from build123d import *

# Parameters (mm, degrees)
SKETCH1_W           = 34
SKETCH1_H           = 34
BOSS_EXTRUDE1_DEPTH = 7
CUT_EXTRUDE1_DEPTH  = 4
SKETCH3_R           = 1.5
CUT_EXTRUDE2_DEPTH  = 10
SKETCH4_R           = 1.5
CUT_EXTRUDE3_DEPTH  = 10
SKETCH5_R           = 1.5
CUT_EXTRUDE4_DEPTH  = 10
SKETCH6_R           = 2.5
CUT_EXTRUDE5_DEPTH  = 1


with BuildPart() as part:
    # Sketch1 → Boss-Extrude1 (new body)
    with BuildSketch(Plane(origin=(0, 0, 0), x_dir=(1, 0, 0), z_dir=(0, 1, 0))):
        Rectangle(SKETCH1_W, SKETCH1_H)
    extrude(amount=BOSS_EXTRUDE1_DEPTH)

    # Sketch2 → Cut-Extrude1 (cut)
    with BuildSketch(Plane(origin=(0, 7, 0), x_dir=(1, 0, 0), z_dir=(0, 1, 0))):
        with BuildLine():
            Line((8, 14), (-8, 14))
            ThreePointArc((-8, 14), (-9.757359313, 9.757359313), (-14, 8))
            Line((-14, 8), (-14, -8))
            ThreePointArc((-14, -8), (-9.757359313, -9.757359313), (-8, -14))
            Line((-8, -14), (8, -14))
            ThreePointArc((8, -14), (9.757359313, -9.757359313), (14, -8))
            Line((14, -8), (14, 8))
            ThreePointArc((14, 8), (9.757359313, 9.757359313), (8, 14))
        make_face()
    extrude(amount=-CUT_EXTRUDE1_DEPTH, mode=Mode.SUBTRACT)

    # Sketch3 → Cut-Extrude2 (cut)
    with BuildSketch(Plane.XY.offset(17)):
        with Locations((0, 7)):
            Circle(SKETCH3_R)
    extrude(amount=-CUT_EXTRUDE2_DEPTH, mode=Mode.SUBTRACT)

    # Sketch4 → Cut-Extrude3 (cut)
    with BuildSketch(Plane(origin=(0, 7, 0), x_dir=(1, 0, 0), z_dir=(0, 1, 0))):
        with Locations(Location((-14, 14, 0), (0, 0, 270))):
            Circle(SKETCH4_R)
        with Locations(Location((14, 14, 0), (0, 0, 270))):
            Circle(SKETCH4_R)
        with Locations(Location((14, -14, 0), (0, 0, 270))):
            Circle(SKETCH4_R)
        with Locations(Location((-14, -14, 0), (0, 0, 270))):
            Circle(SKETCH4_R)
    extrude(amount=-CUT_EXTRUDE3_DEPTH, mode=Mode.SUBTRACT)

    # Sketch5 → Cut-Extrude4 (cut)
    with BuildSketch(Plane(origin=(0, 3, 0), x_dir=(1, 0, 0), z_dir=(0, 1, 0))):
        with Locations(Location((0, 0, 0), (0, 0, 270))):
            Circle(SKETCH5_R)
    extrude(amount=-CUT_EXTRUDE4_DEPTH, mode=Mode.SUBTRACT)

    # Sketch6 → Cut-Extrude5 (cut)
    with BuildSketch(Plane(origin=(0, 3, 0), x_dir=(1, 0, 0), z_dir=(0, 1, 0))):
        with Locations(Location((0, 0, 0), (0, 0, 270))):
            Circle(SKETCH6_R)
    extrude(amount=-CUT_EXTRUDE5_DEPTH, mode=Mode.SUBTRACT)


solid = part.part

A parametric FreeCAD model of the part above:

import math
import FreeCAD as App
import Part
import Sketcher

V = App.Vector


def add_polygon(sketch, points):
    """Adds a closed chain of lines whose ends are joined by coincident constraints."""
    first, n = sketch.GeometryCount, len(points)
    for a, b in zip(points, points[1:] + points[:1]):
        sketch.addGeometry(Part.LineSegment(App.Vector(*a, 0), App.Vector(*b, 0)), False)
    for i in range(n):
        sketch.addConstraint(Sketcher.Constraint("Coincident", first + i, 2, first + (i + 1) % n, 1))

doc = App.newDocument("Part")
body = doc.addObject("PartDesign::Body", "Body")

# Sketch on XZ plane
sketch1 = body.newObject("Sketcher::SketchObject", "Sketch")
sketch1.AttachmentSupport = (doc.getObject("XZ_Plane"), [""])
sketch1.MapMode = "FlatFace"
add_polygon(sketch1, [(-17, -17), (-17, 17), (17, 17), (17, -17)])  # lines 0-3
sketch1.addConstraint([
    Sketcher.Constraint("Vertical", 0),
    Sketcher.Constraint("Horizontal", 1),
    Sketcher.Constraint("Vertical", 2),
    Sketcher.Constraint("Horizontal", 3),
    Sketcher.Constraint("Symmetric", 0, 2, 2, 2, -1, 1),
    Sketcher.Constraint("Equal", 3, 0),
    Sketcher.Constraint("DistanceX", 1, 1, 1, 2, 34.0),
])
pad1 = body.newObject("PartDesign::Pad", "Pad")
pad1.Profile = sketch1
pad1.Length = 7
pad1.Reversed = True

# Sketch on XZ plane
sketch2 = body.newObject("Sketcher::SketchObject", "Sketch001")
sketch2.AttachmentSupport = (doc.getObject("XZ_Plane"), [""])
sketch2.MapMode = "FlatFace"
sketch2.AttachmentOffset = App.Placement(V(0, 0, -7), App.Rotation())
sketch2.addGeometry([
    Part.LineSegment(V(8, -14, 0), V(-8, -14, 0)),  # 0
    Part.ArcOfCircle(Part.Circle(V(-14, -14, 0), V(0, 0, 1), 6), math.radians(0), math.radians(90)),  # 1
    Part.LineSegment(V(-14, -8, 0), V(-14, 8, 0)),  # 2
    Part.ArcOfCircle(Part.Circle(V(-14, 14, 0), V(0, 0, 1), 6), math.radians(-90), math.radians(0)),  # 3
    Part.LineSegment(V(-8, 14, 0), V(8, 14, 0)),  # 4
    Part.ArcOfCircle(Part.Circle(V(14, 14, 0), V(0, 0, 1), 6), math.radians(180), math.radians(270)),  # 5
    Part.LineSegment(V(14, 8, 0), V(14, -8, 0)),  # 6
    Part.ArcOfCircle(Part.Circle(V(14, -14, 0), V(0, 0, 1), 6), math.radians(90), math.radians(180)),  # 7
], False)
sketch2.addConstraint([
    Sketcher.Constraint("Coincident", 0, 2, 1, 1),
    Sketcher.Constraint("Coincident", 1, 2, 2, 1),
    Sketcher.Constraint("Coincident", 2, 2, 3, 1),
    Sketcher.Constraint("Coincident", 3, 2, 4, 1),
    Sketcher.Constraint("Coincident", 4, 2, 5, 1),
    Sketcher.Constraint("Coincident", 5, 2, 6, 1),
    Sketcher.Constraint("Coincident", 6, 2, 7, 1),
    Sketcher.Constraint("Coincident", 7, 2, 0, 1),
    Sketcher.Constraint("Horizontal", 0),
    Sketcher.Constraint("Vertical", 2),
    Sketcher.Constraint("Horizontal", 4),
    Sketcher.Constraint("Vertical", 6),
    Sketcher.Constraint("Equal", 1, 3),
    Sketcher.Constraint("Equal", 3, 5),
    Sketcher.Constraint("Equal", 5, 7),
    Sketcher.Constraint("Symmetric", 1, 3, 5, 3, -1, 1),
    Sketcher.Constraint("Symmetric", 3, 3, 7, 3, -1, 1),
    Sketcher.Constraint("Symmetric", 3, 3, 5, 3, -2),
    Sketcher.Constraint("Horizontal", 7, 3, 0, 2),
    Sketcher.Constraint("Horizontal", 5, 3, 3, 2),
    Sketcher.Constraint("Vertical", 3, 3, 1, 2),
    Sketcher.Constraint("Vertical", 7, 3, 5, 2),
    Sketcher.Constraint("Equal", 4, 2),
    Sketcher.Constraint("Radius", 1, 6.0),
    Sketcher.Constraint("DistanceX", 0, 2, 0, 1, 16.0),
])
pocket1 = body.newObject("PartDesign::Pocket", "Pocket")
pocket1.Profile = sketch2
pocket1.Length = 4
pocket1.Reversed = True

# Sketch on XY plane
sketch3 = body.newObject("Sketcher::SketchObject", "Sketch002")
sketch3.AttachmentSupport = (doc.getObject("XY_Plane"), [""])
sketch3.MapMode = "FlatFace"
sketch3.AttachmentOffset = App.Placement(V(0, 0, 17), App.Rotation())
sketch3.addGeometry(Part.Circle(V(0, 7, 0), V(0, 0, 1), 1.5), False)
sketch3.addConstraint([
    Sketcher.Constraint("PointOnObject", 0, 3, -2),
    Sketcher.Constraint("Diameter", 0, 3.0),
    Sketcher.Constraint("DistanceY", -1, 1, 0, 3, 7.0),
])
pocket2 = body.newObject("PartDesign::Pocket", "Pocket001")
pocket2.Profile = sketch3
pocket2.Length = 10

# Sketch on XZ plane
sketch4 = body.newObject("Sketcher::SketchObject", "Sketch003")
sketch4.AttachmentSupport = (doc.getObject("XZ_Plane"), [""])
sketch4.MapMode = "FlatFace"
sketch4.AttachmentOffset = App.Placement(V(0, 0, -7), App.Rotation())
sketch4.addGeometry([
    Part.Circle(V(-14, -14, 0), V(0, 0, 1), 1.5),
    Part.Circle(V(14, -14, 0), V(0, 0, 1), 1.5),
    Part.Circle(V(14, 14, 0), V(0, 0, 1), 1.5),
    Part.Circle(V(-14, 14, 0), V(0, 0, 1), 1.5),
], False)
sketch4.addConstraint([
    Sketcher.Constraint("Equal", 0, 1),
    Sketcher.Constraint("Equal", 1, 2),
    Sketcher.Constraint("Equal", 2, 3),
    Sketcher.Constraint("Symmetric", 0, 3, 2, 3, -1, 1),
    Sketcher.Constraint("Symmetric", 1, 3, 3, 3, -1, 1),
    Sketcher.Constraint("Symmetric", 0, 3, 1, 3, -2),
    Sketcher.Constraint("Diameter", 0, 3.0),
    Sketcher.Constraint("DistanceX", 0, 3, -1, 1, 14.0),
    Sketcher.Constraint("DistanceY", 0, 3, -1, 1, 14.0),
])
pocket3 = body.newObject("PartDesign::Pocket", "Pocket002")
pocket3.Profile = sketch4
pocket3.Length = 10
pocket3.Reversed = True

# Sketch on XZ plane
sketch5 = body.newObject("Sketcher::SketchObject", "Sketch004")
sketch5.AttachmentSupport = (doc.getObject("XZ_Plane"), [""])
sketch5.MapMode = "FlatFace"
sketch5.AttachmentOffset = App.Placement(V(0, 0, -3), App.Rotation())
sketch5.addGeometry(Part.Circle(V(0, 0, 0), V(0, 0, 1), 1.5), False)
sketch5.addConstraint([
    Sketcher.Constraint("Coincident", 0, 3, -1, 1),
    Sketcher.Constraint("Diameter", 0, 3.0),
])
pocket4 = body.newObject("PartDesign::Pocket", "Pocket003")
pocket4.Profile = sketch5
pocket4.Length = 10
pocket4.Reversed = True

# Sketch on XZ plane
sketch6 = body.newObject("Sketcher::SketchObject", "Sketch005")
sketch6.AttachmentSupport = (doc.getObject("XZ_Plane"), [""])
sketch6.MapMode = "FlatFace"
sketch6.AttachmentOffset = App.Placement(V(0, 0, -3), App.Rotation())
sketch6.addGeometry(Part.Circle(V(0, 0, 0), V(0, 0, 1), 2.5), False)
sketch6.addConstraint([
    Sketcher.Constraint("Coincident", 0, 3, -1, 1),
    Sketcher.Constraint("Diameter", 0, 5.0),
])
pocket5 = body.newObject("PartDesign::Pocket", "Pocket004")
pocket5.Profile = sketch6
pocket5.Length = 1
pocket5.Reversed = True

doc.recompute()
